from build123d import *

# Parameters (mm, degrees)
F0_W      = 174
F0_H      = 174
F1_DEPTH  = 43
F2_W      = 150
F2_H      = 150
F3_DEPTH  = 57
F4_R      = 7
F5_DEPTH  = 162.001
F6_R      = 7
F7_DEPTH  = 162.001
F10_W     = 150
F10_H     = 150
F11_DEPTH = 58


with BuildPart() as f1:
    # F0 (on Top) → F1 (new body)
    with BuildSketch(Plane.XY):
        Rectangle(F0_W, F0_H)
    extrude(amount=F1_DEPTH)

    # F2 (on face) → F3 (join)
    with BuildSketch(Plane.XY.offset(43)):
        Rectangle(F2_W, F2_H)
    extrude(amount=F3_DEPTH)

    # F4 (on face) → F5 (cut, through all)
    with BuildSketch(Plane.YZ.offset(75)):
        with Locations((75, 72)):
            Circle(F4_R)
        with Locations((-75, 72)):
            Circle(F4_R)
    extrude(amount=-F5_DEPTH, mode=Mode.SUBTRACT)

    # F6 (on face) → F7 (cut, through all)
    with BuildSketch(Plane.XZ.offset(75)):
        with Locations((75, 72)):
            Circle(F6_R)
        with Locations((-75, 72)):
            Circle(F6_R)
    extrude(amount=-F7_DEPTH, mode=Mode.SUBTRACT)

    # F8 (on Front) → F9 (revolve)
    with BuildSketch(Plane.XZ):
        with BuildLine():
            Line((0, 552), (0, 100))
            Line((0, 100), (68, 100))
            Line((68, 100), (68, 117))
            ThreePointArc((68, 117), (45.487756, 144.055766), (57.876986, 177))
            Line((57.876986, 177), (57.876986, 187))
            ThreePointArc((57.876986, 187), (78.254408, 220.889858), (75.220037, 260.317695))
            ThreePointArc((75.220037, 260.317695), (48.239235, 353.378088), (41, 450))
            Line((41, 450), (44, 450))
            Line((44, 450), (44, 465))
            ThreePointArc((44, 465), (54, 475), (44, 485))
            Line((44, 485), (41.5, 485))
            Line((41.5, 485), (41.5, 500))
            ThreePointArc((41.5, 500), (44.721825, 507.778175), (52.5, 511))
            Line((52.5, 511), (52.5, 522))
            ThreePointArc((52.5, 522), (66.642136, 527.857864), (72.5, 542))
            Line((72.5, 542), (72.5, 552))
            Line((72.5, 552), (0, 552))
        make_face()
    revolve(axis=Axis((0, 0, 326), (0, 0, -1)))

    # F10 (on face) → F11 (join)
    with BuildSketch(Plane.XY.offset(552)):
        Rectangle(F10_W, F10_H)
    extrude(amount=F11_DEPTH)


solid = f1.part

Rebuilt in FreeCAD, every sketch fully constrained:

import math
import FreeCAD as App
import Part
import Sketcher
from FreeCAD import Vector

doc = App.newDocument("Part")
body = doc.addObject("PartDesign::Body", "Body")

sketch1 = doc.addObject("Sketcher::SketchObject", "Sketch")
body.addObject(sketch1)
sketch1.AttachmentSupport = (doc.XY_Plane, [""])
sketch1.MapMode = "FlatFace"
sketch1.addGeometry([
    Part.LineSegment(Vector(-87, 87, 0), Vector(-87, -87, 0)),
    Part.LineSegment(Vector(-87, -87, 0), Vector(87, -87, 0)),
    Part.LineSegment(Vector(87, -87, 0), Vector(87, 87, 0)),
    Part.LineSegment(Vector(87, 87, 0), Vector(-87, 87, 0)),
], False)
sketch1.addConstraint([
    Sketcher.Constraint("Coincident", 0, 2, 1, 1),
    Sketcher.Constraint("Coincident", 1, 2, 2, 1),
    Sketcher.Constraint("Coincident", 2, 2, 3, 1),
    Sketcher.Constraint("Coincident", 3, 2, 0, 1),
    Sketcher.Constraint("Vertical", 0),
    Sketcher.Constraint("Horizontal", 1),
    Sketcher.Constraint("Vertical", 2),
    Sketcher.Constraint("Horizontal", 3),
    Sketcher.Constraint("Symmetric", 0, 2, 2, 2, -1, 1),
    Sketcher.Constraint("Equal", 3, 0),
    Sketcher.Constraint("DistanceX", 1, 1, 1, 2, 174.0),
])
pad1 = doc.addObject("PartDesign::Pad", "Pad")
body.addObject(pad1)
pad1.Profile = sketch1
pad1.Length = 43

sketch2 = doc.addObject("Sketcher::SketchObject", "Sketch001")
body.addObject(sketch2)
sketch2.AttachmentSupport = (doc.XY_Plane, [""])
sketch2.MapMode = "FlatFace"
sketch2.AttachmentOffset = App.Placement(Vector(0, 0, 43), App.Rotation())
sketch2.addGeometry([
    Part.LineSegment(Vector(-75, 75, 0), Vector(-75, -75, 0)),
    Part.LineSegment(Vector(-75, -75, 0), Vector(75, -75, 0)),
    Part.LineSegment(Vector(75, -75, 0), Vector(75, 75, 0)),
    Part.LineSegment(Vector(75, 75, 0), Vector(-75, 75, 0)),
], False)
sketch2.addConstraint([
    Sketcher.Constraint("Coincident", 0, 2, 1, 1),
    Sketcher.Constraint("Coincident", 1, 2, 2, 1),
    Sketcher.Constraint("Coincident", 2, 2, 3, 1),
    Sketcher.Constraint("Coincident", 3, 2, 0, 1),
    Sketcher.Constraint("Vertical", 0),
    Sketcher.Constraint("Horizontal", 1),
    Sketcher.Constraint("Vertical", 2),
    Sketcher.Constraint("Horizontal", 3),
    Sketcher.Constraint("Symmetric", 0, 2, 2, 2, -1, 1),
    Sketcher.Constraint("Equal", 3, 0),
    Sketcher.Constraint("DistanceX", 1, 1, 1, 2, 150.0),
])
pad2 = doc.addObject("PartDesign::Pad", "Pad001")
body.addObject(pad2)
pad2.Profile = sketch2
pad2.Length = 57

sketch3 = doc.addObject("Sketcher::SketchObject", "Sketch002")
body.addObject(sketch3)
sketch3.AttachmentSupport = (doc.YZ_Plane, [""])
sketch3.MapMode = "FlatFace"
sketch3.AttachmentOffset = App.Placement(Vector(0, 0, 75), App.Rotation())
sketch3.addGeometry([
    Part.Circle(Vector(75, 72, 0), Vector(0, 0, 1), 7),
    Part.Circle(Vector(-75, 72, 0), Vector(0, 0, 1), 7),
], False)
sketch3.addConstraint([
    Sketcher.Constraint("Equal", 0, 1),
    Sketcher.Constraint("Symmetric", 0, 3, 1, 3, -2),
    Sketcher.Constraint("Diameter", 0, 14.0),
    Sketcher.Constraint("DistanceX", -1, 1, 0, 3, 75.0),
    Sketcher.Constraint("DistanceY", -1, 1, 0, 3, 72.0),
])
pocket1 = doc.addObject("PartDesign::Pocket", "Pocket")
body.addObject(pocket1)
pocket1.Profile = sketch3
pocket1.Type = "ThroughAll"

sketch4 = doc.addObject("Sketcher::SketchObject", "Sketch003")
body.addObject(sketch4)
sketch4.AttachmentSupport = (doc.XZ_Plane, [""])
sketch4.MapMode = "FlatFace"
sketch4.AttachmentOffset = App.Placement(Vector(0, 0, 75), App.Rotation())
sketch4.addGeometry([
    Part.Circle(Vector(75, 72, 0), Vector(0, 0, 1), 7),
    Part.Circle(Vector(-75, 72, 0), Vector(0, 0, 1), 7),
], False)
sketch4.addConstraint([
    Sketcher.Constraint("Equal", 0, 1),
    Sketcher.Constraint("Symmetric", 0, 3, 1, 3, -2),
    Sketcher.Constraint("Diameter", 0, 14.0),
    Sketcher.Constraint("DistanceX", -1, 1, 0, 3, 75.0),
    Sketcher.Constraint("DistanceY", -1, 1, 0, 3, 72.0),
])
pocket2 = doc.addObject("PartDesign::Pocket", "Pocket001")
body.addObject(pocket2)
pocket2.Profile = sketch4
pocket2.Type = "ThroughAll"

sketch5 = doc.addObject("Sketcher::SketchObject", "Sketch004")
body.addObject(sketch5)
sketch5.AttachmentSupport = (doc.XZ_Plane, [""])
sketch5.MapMode = "FlatFace"
sketch5.addGeometry([
    Part.LineSegment(Vector(0, 552, 0), Vector(0, 100, 0)),
    Part.LineSegment(Vector(0, 100, 0), Vector(68, 100, 0)),
    Part.LineSegment(Vector(68, 100, 0), Vector(68, 117, 0)),
    Part.ArcOfCircle(Part.Circle(Vector(80, 149.9, 0), Vector(0, 0, 1), 35), math.radians(129), math.radians(250)),
    Part.LineSegment(Vector(57.9, 177, 0), Vector(57.9, 187, 0)),
    Part.ArcOfCircle(Part.Circle(Vector(15, 235.9, 0), Vector(0, 0, 1), 65), math.radians(-49), math.radians(22)),
    Part.ArcOfCircle(Part.Circle(Vector(508.8, 436.5, 0), Vector(0, 0, 1), 468), math.radians(178), math.radians(202)),
    Part.LineSegment(Vector(41, 450, 0), Vector(44, 450, 0)),
    Part.LineSegment(Vector(44, 450, 0), Vector(44, 465, 0)),
    Part.ArcOfCircle(Part.Circle(Vector(44, 475, 0), Vector(0, 0, 1), 10), math.radians(-90), math.radians(90)),
    Part.LineSegment(Vector(44, 485, 0), Vector(41.5, 485, 0)),
    Part.LineSegment(Vector(41.5, 485, 0), Vector(41.5, 500, 0)),
    Part.ArcOfCircle(Part.Circle(Vector(52.5, 500, 0), Vector(0, 0, 1), 11), math.radians(90), math.radians(180)),
    Part.LineSegment(Vector(52.5, 511, 0), Vector(52.5, 522, 0)),
    Part.ArcOfCircle(Part.Circle(Vector(52.5, 542, 0), Vector(0, 0, 1), 20), math.radians(-90), math.radians(0)),
    Part.LineSegment(Vector(72.5, 542, 0), Vector(72.5, 552, 0)),
    Part.LineSegment(Vector(72.5, 552, 0), Vector(0, 552, 0)),
], False)
sketch5.addConstraint([
    Sketcher.Constraint("Coincident", 0, 2, 1, 1),
    Sketcher.Constraint("Coincident", 1, 2, 2, 1),
    Sketcher.Constraint("Coincident", 2, 2, 3, 2),
    Sketcher.Constraint("Coincident", 3, 1, 4, 1),
    Sketcher.Constraint("Coincident", 4, 2, 5, 1),
    Sketcher.Constraint("Tangent", 5, 2, 6, 2),
    Sketcher.Constraint("Coincident", 6, 1, 7, 1),
    Sketcher.Constraint("Coincident", 7, 2, 8, 1),
    Sketcher.Constraint("Coincident", 8, 2, 9, 1),
    Sketcher.Constraint("Tangent", 9, 2, 10, 1),
    Sketcher.Constraint("Coincident", 10, 2, 11, 1),
    Sketcher.Constraint("Tangent", 11, 2, 12, 2),
    Sketcher.Constraint("Coincident", 12, 1, 13, 1),
    Sketcher.Constraint("Coincident", 13, 2, 14, 1),
    Sketcher.Constraint("Tangent", 14, 2, 15, 1),
    Sketcher.Constraint("Coincident", 15, 2, 16, 1),
    Sketcher.Constraint("Coincident", 16, 2, 0, 1),
    Sketcher.Constraint("Vertical", 0),
    Sketcher.Constraint("Horizontal", 1),
    Sketcher.Constraint("Vertical", 2),
    Sketcher.Constraint("Vertical", 4),
    Sketcher.Constraint("Horizontal", 7),
    Sketcher.Constraint("Vertical", 8),
    Sketcher.Constraint("Horizontal", 10),
    Sketcher.Constraint("Vertical", 11),
    Sketcher.Constraint("Vertical", 13),
    Sketcher.Constraint("Vertical", 15),
    Sketcher.Constraint("Horizontal", 16),
    Sketcher.Constraint("PointOnObject", 0, 2, -2),
    Sketcher.Constraint("Vertical", 9, 3, 7, 2),
    Sketcher.Constraint("Vertical", 14, 3, 12, 1),
    Sketcher.Constraint("Equal", 8, 11),
    Sketcher.Constraint("Equal", 4, 15),
    Sketcher.Constraint("Radius", 3, 35.000001),
    Sketcher.Constraint("Radius", 5, 65.000001),
    Sketcher.Constraint("Radius", 9, 10.0),
    Sketcher.Constraint("Radius", 12, 10.999999),
    Sketcher.Constraint("Radius", 14, 19.999999),
    Sketcher.Constraint("DistanceX", 1, 1, 1, 2, 68.0),
    Sketcher.Constraint("DistanceX", 7, 1, 7, 2, 3.0),
    Sketcher.Constraint("DistanceY", 0, 2, 0, 1, 452.0),
    Sketcher.Constraint("DistanceY", 2, 1, 2, 2, 17.0),
    Sketcher.Constraint("DistanceY", 4, 1, 4, 2, 10.0),
    Sketcher.Constraint("DistanceY", 8, 1, 8, 2, 15.0),
    Sketcher.Constraint("DistanceY", 13, 1, 13, 2, 11.0),
    Sketcher.Constraint("DistanceX", 10, 2, 10, 1, 2.5),
    Sketcher.Constraint("DistanceX", 16, 2, 16, 1, 72.5),
    Sketcher.Constraint("DistanceX", -1, 1, 3, 3, 80.000001),
    Sketcher.Constraint("DistanceX", -1, 1, 5, 3, 14.999999),
    Sketcher.Constraint("DistanceX", -1, 1, 9, 3, 44.0),
    Sketcher.Constraint("DistanceY", -1, 1, 9, 3, 475.0),
    Sketcher.Constraint("DistanceY", -1, 1, 3, 1, 177.0),
    Sketcher.Constraint("Radius", 6, 468.000022),
])
revolution = doc.addObject("PartDesign::Revolution", "Revolution")
body.addObject(revolution)
revolution.Profile = sketch5
revolution.ReferenceAxis = (sketch5, ["V_Axis"])
revolution.Angle = 360

sketch6 = doc.addObject("Sketcher::SketchObject", "Sketch005")
body.addObject(sketch6)
sketch6.AttachmentSupport = (doc.XY_Plane, [""])
sketch6.MapMode = "FlatFace"
sketch6.AttachmentOffset = App.Placement(Vector(0, 0, 552), App.Rotation())
sketch6.addGeometry([
    Part.LineSegment(Vector(-75, 75, 0), Vector(-75, -75, 0)),
    Part.LineSegment(Vector(-75, -75, 0), Vector(75, -75, 0)),
    Part.LineSegment(Vector(75, -75, 0), Vector(75, 75, 0)),
    Part.LineSegment(Vector(75, 75, 0), Vector(-75, 75, 0)),
], False)
sketch6.addConstraint([
    Sketcher.Constraint("Coincident", 0, 2, 1, 1),
    Sketcher.Constraint("Coincident", 1, 2, 2, 1),
    Sketcher.Constraint("Coincident", 2, 2, 3, 1),
    Sketcher.Constraint("Coincident", 3, 2, 0, 1),
    Sketcher.Constraint("Vertical", 0),
    Sketcher.Constraint("Horizontal", 1),
    Sketcher.Constraint("Vertical", 2),
    Sketcher.Constraint("Horizontal", 3),
    Sketcher.Constraint("Symmetric", 0, 2, 2, 2, -1, 1),
    Sketcher.Constraint("Equal", 3, 0),
    Sketcher.Constraint("DistanceX", 1, 1, 1, 2, 150.0),
])
pad3 = doc.addObject("PartDesign::Pad", "Pad002")
body.addObject(pad3)
pad3.Profile = sketch6
pad3.Length = 58

doc.recompute()
